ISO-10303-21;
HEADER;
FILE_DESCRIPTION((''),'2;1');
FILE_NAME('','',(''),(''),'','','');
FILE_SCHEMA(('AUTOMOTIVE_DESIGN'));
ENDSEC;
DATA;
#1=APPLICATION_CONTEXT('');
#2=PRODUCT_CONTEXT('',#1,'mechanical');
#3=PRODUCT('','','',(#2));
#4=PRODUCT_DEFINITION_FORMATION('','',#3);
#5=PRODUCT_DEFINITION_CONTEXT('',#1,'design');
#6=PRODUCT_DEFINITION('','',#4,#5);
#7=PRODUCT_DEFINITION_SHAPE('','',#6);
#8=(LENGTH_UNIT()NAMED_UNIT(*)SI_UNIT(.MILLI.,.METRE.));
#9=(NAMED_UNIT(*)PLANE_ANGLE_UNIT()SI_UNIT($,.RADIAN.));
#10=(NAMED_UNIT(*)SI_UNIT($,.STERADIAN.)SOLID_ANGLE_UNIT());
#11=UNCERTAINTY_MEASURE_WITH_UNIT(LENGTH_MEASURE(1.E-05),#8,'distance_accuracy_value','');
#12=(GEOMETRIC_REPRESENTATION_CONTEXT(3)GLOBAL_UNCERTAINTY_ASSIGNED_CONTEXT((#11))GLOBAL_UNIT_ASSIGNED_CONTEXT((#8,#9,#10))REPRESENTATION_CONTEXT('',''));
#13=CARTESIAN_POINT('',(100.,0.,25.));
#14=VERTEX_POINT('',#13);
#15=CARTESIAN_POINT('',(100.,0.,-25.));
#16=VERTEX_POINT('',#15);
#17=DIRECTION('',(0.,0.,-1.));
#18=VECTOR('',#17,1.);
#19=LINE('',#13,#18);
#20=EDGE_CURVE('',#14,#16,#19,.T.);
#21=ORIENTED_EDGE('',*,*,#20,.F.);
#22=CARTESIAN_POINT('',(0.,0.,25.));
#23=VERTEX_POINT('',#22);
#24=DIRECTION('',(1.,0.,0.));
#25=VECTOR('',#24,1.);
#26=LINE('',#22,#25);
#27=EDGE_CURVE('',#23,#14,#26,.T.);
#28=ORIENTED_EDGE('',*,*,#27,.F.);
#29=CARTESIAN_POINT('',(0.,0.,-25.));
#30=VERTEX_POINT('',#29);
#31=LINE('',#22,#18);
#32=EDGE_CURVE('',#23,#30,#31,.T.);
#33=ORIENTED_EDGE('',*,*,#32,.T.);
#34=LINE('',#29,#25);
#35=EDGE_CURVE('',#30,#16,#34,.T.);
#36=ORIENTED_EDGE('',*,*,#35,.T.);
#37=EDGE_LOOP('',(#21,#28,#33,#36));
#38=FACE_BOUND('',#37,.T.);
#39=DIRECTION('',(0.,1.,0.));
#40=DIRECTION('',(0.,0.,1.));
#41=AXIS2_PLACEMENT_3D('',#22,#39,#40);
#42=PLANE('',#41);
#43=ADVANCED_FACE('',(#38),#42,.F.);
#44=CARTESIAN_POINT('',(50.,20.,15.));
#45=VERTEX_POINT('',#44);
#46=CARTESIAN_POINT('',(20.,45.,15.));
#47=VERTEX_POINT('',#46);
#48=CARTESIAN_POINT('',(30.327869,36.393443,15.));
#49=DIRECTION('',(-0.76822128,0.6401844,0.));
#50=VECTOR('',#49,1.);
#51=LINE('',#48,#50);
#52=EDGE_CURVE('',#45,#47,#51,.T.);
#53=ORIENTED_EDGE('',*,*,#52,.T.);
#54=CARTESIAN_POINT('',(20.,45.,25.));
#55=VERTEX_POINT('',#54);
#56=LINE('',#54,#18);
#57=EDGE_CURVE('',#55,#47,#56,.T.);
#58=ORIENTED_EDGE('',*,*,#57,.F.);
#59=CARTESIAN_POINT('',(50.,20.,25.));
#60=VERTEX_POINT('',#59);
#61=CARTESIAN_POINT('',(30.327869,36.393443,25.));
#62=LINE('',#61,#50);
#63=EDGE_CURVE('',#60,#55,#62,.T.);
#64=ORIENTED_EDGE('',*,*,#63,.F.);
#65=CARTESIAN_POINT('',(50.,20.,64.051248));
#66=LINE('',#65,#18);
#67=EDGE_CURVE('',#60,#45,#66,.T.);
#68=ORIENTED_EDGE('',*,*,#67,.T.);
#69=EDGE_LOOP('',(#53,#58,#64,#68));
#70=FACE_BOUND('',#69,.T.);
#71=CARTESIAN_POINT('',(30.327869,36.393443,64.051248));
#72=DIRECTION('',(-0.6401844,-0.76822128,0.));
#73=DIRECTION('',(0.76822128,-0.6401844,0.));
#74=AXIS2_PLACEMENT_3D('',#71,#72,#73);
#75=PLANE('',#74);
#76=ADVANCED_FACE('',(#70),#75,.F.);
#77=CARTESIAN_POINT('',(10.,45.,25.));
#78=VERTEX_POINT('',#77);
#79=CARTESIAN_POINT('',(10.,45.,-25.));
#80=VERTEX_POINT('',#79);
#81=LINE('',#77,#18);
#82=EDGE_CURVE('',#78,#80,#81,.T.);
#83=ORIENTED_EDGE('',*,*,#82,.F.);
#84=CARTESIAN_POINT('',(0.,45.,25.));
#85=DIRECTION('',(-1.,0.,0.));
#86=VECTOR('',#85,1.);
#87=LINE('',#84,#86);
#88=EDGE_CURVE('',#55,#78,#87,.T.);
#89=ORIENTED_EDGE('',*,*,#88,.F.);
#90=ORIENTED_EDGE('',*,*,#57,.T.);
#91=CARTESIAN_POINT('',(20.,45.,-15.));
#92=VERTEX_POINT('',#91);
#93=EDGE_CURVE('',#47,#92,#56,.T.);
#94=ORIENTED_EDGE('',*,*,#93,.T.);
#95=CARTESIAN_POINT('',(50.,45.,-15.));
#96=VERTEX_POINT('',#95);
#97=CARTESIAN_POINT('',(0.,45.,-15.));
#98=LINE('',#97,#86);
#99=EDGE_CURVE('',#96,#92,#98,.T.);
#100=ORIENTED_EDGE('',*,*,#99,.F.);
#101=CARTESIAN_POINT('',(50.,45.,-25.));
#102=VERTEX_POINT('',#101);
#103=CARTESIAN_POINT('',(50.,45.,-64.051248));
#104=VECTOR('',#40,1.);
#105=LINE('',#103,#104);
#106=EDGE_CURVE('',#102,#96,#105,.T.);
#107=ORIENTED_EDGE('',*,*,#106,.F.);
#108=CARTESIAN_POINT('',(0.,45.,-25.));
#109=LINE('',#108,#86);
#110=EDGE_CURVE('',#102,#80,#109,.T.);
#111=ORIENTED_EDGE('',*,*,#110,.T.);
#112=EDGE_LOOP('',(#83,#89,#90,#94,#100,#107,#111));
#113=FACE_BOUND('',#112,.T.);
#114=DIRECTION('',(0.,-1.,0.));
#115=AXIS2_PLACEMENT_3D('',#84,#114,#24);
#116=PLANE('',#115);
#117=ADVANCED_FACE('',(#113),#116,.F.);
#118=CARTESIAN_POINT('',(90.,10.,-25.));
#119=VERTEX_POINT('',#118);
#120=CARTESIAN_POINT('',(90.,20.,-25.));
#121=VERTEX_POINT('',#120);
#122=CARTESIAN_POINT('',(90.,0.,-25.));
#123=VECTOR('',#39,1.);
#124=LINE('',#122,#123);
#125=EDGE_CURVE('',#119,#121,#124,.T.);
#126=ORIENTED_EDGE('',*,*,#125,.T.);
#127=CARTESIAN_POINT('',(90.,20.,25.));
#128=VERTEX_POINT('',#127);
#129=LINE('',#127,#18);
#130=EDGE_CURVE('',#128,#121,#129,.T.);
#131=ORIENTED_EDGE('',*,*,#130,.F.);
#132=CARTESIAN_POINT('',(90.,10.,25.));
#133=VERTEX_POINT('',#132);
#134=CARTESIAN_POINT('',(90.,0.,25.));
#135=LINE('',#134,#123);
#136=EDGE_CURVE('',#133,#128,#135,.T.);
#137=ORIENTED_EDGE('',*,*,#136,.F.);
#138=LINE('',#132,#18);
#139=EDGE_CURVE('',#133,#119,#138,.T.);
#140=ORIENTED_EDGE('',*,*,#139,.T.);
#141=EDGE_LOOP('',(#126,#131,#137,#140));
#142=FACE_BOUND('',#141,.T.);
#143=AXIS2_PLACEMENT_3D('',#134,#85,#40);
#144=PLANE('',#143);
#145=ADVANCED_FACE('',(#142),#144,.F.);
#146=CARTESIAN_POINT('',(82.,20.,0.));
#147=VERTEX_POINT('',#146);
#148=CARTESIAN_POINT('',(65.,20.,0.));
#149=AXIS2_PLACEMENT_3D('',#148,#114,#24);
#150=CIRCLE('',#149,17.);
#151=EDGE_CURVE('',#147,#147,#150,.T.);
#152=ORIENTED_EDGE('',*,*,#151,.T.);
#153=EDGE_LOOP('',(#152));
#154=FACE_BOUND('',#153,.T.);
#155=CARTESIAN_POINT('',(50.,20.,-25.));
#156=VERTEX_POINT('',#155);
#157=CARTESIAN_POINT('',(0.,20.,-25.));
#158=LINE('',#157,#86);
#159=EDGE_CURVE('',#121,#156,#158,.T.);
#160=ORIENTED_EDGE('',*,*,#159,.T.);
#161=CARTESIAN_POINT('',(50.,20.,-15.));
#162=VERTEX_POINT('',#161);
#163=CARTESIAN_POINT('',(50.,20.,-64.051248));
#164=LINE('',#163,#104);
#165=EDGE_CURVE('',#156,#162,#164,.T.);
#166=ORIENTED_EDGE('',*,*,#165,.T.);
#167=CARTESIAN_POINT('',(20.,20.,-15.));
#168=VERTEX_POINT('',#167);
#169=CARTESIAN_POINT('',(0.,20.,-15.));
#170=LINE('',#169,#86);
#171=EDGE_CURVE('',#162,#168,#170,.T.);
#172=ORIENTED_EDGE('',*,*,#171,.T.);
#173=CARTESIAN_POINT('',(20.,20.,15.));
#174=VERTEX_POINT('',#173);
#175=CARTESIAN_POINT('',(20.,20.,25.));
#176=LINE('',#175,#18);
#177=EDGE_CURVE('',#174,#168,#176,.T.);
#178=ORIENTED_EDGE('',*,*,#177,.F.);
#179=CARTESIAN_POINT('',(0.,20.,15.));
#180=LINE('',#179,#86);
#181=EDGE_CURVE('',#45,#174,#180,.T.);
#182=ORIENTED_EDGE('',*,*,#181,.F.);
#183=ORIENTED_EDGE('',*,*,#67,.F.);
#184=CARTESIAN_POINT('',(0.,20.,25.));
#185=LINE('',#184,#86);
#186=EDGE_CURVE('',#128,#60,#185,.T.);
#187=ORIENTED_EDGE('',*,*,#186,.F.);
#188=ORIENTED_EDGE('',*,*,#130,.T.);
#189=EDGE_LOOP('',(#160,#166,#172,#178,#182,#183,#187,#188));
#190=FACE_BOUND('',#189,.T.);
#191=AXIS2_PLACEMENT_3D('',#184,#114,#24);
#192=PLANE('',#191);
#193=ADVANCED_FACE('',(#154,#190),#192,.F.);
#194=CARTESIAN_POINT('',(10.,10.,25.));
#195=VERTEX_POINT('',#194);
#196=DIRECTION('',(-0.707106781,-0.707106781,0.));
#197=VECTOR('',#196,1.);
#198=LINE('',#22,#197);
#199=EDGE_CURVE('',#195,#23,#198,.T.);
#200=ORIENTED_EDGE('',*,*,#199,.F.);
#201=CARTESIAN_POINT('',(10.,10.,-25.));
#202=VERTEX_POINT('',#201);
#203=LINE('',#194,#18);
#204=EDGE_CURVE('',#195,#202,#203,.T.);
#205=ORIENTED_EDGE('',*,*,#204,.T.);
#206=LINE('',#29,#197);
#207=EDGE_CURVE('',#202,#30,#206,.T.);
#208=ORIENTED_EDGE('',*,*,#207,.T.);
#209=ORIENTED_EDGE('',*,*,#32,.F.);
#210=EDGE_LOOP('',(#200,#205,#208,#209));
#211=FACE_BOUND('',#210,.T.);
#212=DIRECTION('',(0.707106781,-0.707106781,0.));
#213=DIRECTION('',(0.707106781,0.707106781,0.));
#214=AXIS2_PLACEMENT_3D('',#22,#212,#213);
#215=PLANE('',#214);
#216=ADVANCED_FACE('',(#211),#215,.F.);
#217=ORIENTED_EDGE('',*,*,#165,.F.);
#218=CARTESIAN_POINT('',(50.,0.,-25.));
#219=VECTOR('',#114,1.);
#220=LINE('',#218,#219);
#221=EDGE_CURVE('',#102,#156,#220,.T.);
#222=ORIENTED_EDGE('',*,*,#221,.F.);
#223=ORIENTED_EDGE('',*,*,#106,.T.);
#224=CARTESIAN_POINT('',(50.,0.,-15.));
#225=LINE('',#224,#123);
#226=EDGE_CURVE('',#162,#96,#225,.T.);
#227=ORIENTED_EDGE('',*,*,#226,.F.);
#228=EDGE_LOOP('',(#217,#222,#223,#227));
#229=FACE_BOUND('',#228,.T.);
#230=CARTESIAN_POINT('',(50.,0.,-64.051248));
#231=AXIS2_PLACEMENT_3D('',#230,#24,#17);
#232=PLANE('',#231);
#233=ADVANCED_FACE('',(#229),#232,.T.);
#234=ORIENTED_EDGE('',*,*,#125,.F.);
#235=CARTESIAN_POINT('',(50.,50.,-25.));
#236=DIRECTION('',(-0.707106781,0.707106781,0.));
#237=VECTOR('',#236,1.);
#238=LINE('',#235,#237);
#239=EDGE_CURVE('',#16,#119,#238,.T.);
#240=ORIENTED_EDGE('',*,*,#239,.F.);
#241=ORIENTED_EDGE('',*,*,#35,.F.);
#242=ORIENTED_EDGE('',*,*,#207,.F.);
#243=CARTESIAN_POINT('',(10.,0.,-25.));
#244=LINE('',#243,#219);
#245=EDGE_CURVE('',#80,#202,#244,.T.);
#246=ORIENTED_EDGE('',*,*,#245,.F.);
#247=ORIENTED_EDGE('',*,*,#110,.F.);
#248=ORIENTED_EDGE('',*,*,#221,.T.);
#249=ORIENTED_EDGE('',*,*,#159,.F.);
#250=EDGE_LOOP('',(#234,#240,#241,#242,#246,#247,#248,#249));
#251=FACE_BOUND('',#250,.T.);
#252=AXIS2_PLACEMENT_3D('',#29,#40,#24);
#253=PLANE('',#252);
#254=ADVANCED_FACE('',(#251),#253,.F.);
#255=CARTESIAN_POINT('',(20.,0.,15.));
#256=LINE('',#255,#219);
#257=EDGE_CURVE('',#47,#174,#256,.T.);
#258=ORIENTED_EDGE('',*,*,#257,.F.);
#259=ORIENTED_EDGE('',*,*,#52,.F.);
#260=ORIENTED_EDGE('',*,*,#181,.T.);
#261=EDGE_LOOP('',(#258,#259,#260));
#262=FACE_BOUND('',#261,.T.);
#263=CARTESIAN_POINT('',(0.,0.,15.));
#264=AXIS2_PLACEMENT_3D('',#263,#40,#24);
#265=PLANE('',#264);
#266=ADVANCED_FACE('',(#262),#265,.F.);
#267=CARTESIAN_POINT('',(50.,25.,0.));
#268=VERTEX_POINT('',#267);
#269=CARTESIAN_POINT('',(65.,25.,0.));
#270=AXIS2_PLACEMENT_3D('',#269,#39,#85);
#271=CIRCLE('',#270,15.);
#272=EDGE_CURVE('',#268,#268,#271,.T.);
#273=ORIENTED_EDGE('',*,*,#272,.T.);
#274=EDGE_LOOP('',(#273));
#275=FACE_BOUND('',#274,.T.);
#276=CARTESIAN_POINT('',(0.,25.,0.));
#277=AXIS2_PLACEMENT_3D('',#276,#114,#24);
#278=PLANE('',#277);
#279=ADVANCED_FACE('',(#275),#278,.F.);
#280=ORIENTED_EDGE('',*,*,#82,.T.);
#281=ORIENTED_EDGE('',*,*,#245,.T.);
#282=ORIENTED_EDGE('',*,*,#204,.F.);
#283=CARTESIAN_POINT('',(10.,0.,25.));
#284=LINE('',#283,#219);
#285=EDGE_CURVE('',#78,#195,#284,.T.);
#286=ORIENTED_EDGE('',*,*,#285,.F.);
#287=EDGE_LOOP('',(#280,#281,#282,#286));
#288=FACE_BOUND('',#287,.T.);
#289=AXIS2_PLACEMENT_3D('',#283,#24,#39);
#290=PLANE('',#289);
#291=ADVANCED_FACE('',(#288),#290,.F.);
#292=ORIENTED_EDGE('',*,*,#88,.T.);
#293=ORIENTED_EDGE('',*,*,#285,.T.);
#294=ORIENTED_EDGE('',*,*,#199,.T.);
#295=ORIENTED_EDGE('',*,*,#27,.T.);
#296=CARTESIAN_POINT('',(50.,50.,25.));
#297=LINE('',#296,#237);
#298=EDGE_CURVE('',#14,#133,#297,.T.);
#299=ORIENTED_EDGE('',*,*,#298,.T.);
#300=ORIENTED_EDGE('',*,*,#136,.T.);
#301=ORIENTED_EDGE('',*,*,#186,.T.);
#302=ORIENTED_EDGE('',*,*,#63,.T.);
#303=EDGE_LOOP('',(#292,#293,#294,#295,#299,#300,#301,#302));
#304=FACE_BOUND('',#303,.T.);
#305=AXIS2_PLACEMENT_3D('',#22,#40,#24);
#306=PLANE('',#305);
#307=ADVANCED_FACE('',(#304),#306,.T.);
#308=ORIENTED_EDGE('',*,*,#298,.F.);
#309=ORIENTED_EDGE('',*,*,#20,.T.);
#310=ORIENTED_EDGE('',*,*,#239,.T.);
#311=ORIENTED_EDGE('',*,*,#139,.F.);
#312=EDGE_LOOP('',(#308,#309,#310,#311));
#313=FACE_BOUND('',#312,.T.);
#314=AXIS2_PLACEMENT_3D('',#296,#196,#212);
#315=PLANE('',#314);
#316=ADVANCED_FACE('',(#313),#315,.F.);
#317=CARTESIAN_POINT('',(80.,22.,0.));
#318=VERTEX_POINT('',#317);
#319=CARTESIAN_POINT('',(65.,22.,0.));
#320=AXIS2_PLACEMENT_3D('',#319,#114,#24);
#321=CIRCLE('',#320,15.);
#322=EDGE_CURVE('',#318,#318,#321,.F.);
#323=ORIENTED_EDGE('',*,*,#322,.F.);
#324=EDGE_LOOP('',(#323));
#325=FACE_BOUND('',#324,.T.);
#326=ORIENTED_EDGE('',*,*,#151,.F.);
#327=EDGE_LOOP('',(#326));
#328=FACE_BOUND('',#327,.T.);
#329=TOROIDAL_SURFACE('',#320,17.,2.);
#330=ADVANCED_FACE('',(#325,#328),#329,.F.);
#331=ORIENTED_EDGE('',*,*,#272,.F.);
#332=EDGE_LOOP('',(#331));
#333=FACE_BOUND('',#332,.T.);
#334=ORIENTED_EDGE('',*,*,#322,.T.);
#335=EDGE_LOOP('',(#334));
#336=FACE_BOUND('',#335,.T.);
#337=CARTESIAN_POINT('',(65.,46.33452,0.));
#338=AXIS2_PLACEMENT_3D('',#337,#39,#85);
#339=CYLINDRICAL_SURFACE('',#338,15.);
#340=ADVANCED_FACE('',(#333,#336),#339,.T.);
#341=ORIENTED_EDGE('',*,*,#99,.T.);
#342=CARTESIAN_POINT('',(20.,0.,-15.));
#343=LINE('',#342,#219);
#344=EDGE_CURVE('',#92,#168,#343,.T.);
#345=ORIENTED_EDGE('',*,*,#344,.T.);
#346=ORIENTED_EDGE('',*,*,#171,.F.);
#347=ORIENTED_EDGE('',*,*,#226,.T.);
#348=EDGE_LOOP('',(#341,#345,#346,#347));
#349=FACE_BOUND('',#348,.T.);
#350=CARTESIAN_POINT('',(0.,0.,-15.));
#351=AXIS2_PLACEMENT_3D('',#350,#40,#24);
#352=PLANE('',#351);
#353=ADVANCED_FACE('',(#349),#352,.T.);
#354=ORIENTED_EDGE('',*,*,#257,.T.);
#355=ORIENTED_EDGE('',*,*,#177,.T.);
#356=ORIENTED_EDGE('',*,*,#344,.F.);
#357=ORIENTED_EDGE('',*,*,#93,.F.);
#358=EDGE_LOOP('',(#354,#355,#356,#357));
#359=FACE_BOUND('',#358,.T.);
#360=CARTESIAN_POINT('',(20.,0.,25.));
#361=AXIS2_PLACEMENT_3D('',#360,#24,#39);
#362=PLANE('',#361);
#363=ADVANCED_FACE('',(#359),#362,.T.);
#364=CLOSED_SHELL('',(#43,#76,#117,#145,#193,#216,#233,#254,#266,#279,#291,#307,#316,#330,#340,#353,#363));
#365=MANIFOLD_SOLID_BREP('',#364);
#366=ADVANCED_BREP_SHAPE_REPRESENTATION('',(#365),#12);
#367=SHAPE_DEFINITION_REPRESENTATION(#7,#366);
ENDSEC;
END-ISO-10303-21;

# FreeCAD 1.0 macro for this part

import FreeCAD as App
import Part
import Sketcher

V = App.Vector
Q = App.Units.Quantity


def edges_at(feature, points):
    """Names of the edges that pass closest to the given points."""
    edges = feature.Shape.Edges
    near = lambda p: min(range(len(edges)), key=lambda i: edges[i].distToShape(Part.Vertex(*p))[0])
    return sorted({f"Edge{near(p) + 1}" for p in points})

doc = App.newDocument("Part")
body = doc.addObject("PartDesign::Body", "Body")

# Sketch on XY plane
sketch1 = body.newObject("Sketcher::SketchObject", "Sketch")
sketch1.AttachmentSupport = (doc.getObject("XY_Plane"), [""])
sketch1.MapMode = "FlatFace"
sketch1.addGeometry([
    Part.LineSegment(V(10, 10, 0), V(0, 0, 0)),  # 0
    Part.LineSegment(V(0, 0, 0), V(100, 0, 0)),  # 1
    Part.LineSegment(V(100, 0, 0), V(90, 10, 0)),  # 2
    Part.LineSegment(V(90, 10, 0), V(90, 20, 0)),  # 3
    Part.LineSegment(V(90, 20, 0), V(20, 20, 0)),  # 4
    Part.LineSegment(V(20, 20, 0), V(20, 45, 0)),  # 5
    Part.LineSegment(V(20, 45, 0), V(10, 45, 0)),  # 6
    Part.LineSegment(V(10, 45, 0), V(10, 10, 0)),  # 7
], False)
sketch1.addConstraint([
    Sketcher.Constraint("Coincident", 0, 2, 1, 1),
    Sketcher.Constraint("Coincident", 1, 2, 2, 1),
    Sketcher.Constraint("Coincident", 2, 2, 3, 1),
    Sketcher.Constraint("Coincident", 3, 2, 4, 1),
    Sketcher.Constraint("Coincident", 4, 2, 5, 1),
    Sketcher.Constraint("Coincident", 5, 2, 6, 1),
    Sketcher.Constraint("Coincident", 6, 2, 7, 1),
    Sketcher.Constraint("Coincident", 7, 2, 0, 1),
    Sketcher.Constraint("Horizontal", 1),
    Sketcher.Constraint("Vertical", 3),
    Sketcher.Constraint("Horizontal", 4),
    Sketcher.Constraint("Vertical", 5),
    Sketcher.Constraint("Horizontal", 6),
    Sketcher.Constraint("Vertical", 7),
    Sketcher.Constraint("Coincident", 0, 2, -1, 1),
    Sketcher.Constraint("Perpendicular", 0, 2),
    Sketcher.Constraint("Horizontal", 2, 2, 7, 2),
    Sketcher.Constraint("Equal", 6, 3),
    Sketcher.Constraint("Equal", 0, 2),
    Sketcher.Constraint("DistanceX", 1, 1, 1, 2, Q("100 mm")),
    Sketcher.Constraint("DistanceX", 4, 2, 4, 1, Q("70 mm")),
    Sketcher.Constraint("DistanceX", 6, 2, 6, 1, Q("10 mm")),
    Sketcher.Constraint("DistanceY", 5, 1, 5, 2, Q("25 mm")),
])
pad1 = body.newObject("PartDesign::Pad", "Pad")
pad1.Profile = sketch1
pad1.Length = 50
pad1.Midplane = True

# Sketch on XY plane
sketch2 = body.newObject("Sketcher::SketchObject", "Sketch001")
sketch2.AttachmentSupport = (doc.getObject("XY_Plane"), [""])
sketch2.MapMode = "FlatFace"
sketch2.AttachmentOffset = App.Placement(V(0, 0, 15), App.Rotation())
sketch2.addGeometry([
    Part.LineSegment(V(20, 45, 0), V(20, 20, 0)),
    Part.LineSegment(V(20, 20, 0), V(50, 20, 0)),
    Part.LineSegment(V(50, 20, 0), V(20, 45, 0)),
], False)
sketch2.addConstraint([
    Sketcher.Constraint("Coincident", 0, 2, 1, 1),
    Sketcher.Constraint("Coincident", 1, 2, 2, 1),
    Sketcher.Constraint("Coincident", 2, 2, 0, 1),
    Sketcher.Constraint("Vertical", 0),
    Sketcher.Constraint("Horizontal", 1),
    Sketcher.Constraint("DistanceX", 1, 1, 1, 2, Q("30 mm")),
    Sketcher.Constraint("DistanceY", 0, 2, 0, 1, Q("25 mm")),
    Sketcher.Constraint("DistanceX", -1, 1, 0, 2, Q("20 mm")),
    Sketcher.Constraint("DistanceY", -1, 1, 0, 2, Q("20 mm")),
])
pad2 = body.newObject("PartDesign::Pad", "Pad001")
pad2.Profile = sketch2
pad2.Length = 10

# Sketch on XY plane
sketch3 = body.newObject("Sketcher::SketchObject", "Sketch002")
sketch3.AttachmentSupport = (doc.getObject("XY_Plane"), [""])
sketch3.MapMode = "FlatFace"
sketch3.AttachmentOffset = App.Placement(V(0, 0, -15), App.Rotation())
sketch3.addGeometry([
    Part.LineSegment(V(20, 45, 0), V(20, 20, 0)),
    Part.LineSegment(V(20, 20, 0), V(50, 20, 0)),
    Part.LineSegment(V(50, 20, 0), V(50, 45, 0)),
    Part.LineSegment(V(50, 45, 0), V(20, 45, 0)),
], False)
sketch3.addConstraint([
    Sketcher.Constraint("Coincident", 0, 2, 1, 1),
    Sketcher.Constraint("Coincident", 1, 2, 2, 1),
    Sketcher.Constraint("Coincident", 2, 2, 3, 1),
    Sketcher.Constraint("Coincident", 3, 2, 0, 1),
    Sketcher.Constraint("Vertical", 0),
    Sketcher.Constraint("Horizontal", 1),
    Sketcher.Constraint("Vertical", 2),
    Sketcher.Constraint("Horizontal", 3),
    Sketcher.Constraint("DistanceX", 1, 1, 1, 2, Q("30 mm")),
    Sketcher.Constraint("DistanceY", 0, 2, 0, 1, Q("25 mm")),
    Sketcher.Constraint("DistanceX", -1, 1, 0, 2, Q("20 mm")),
    Sketcher.Constraint("DistanceY", -1, 1, 0, 2, Q("20 mm")),
])
pad3 = body.newObject("PartDesign::Pad", "Pad002")
pad3.Profile = sketch3
pad3.Length = 10
pad3.Reversed = True

# Sketch on XY plane
sketch4 = body.newObject("Sketcher::SketchObject", "Sketch003")
sketch4.AttachmentSupport = (doc.getObject("XY_Plane"), [""])
sketch4.MapMode = "FlatFace"
sketch4.addGeometry([
    Part.LineSegment(V(65, 25, 0), V(65, 20, 0)),
    Part.LineSegment(V(65, 20, 0), V(80, 20, 0)),
    Part.LineSegment(V(80, 20, 0), V(80, 25, 0)),
    Part.LineSegment(V(80, 25, 0), V(65, 25, 0)),
], False)
sketch4.addGeometry(Part.LineSegment(V(65, 25, 0), V(65, 20, 0)), True)  # axis
sketch4.addConstraint([
    Sketcher.Constraint("Coincident", 0, 2, 1, 1),
    Sketcher.Constraint("Coincident", 1, 2, 2, 1),
    Sketcher.Constraint("Coincident", 2, 2, 3, 1),
    Sketcher.Constraint("Coincident", 3, 2, 0, 1),
    Sketcher.Constraint("Vertical", 0),
    Sketcher.Constraint("Horizontal", 1),
    Sketcher.Constraint("Vertical", 2),
    Sketcher.Constraint("Horizontal", 3),
    Sketcher.Constraint("Vertical", 4),
    Sketcher.Constraint("Coincident", 4, 1, 3, 2),
    Sketcher.Constraint("Horizontal", 1, 2, 4, 2),
    Sketcher.Constraint("DistanceX", 1, 1, 1, 2, Q("15 mm")),
    Sketcher.Constraint("DistanceY", 0, 2, 0, 1, Q("5 mm")),
    Sketcher.Constraint("DistanceX", -1, 1, 0, 2, Q("65 mm")),
    Sketcher.Constraint("DistanceY", -1, 1, 0, 2, Q("20 mm")),
])
revolution = body.newObject("PartDesign::Revolution", "Revolution")
revolution.Profile = sketch4
revolution.ReferenceAxis = (sketch4, ["Axis0"])
revolution.Angle = 360
doc.recompute()

fillet = body.newObject("PartDesign::Fillet", "Fillet")
fillet.Base = (revolution, edges_at(revolution, [(50, 20, 0)]))
fillet.Radius = 2

doc.recompute()
